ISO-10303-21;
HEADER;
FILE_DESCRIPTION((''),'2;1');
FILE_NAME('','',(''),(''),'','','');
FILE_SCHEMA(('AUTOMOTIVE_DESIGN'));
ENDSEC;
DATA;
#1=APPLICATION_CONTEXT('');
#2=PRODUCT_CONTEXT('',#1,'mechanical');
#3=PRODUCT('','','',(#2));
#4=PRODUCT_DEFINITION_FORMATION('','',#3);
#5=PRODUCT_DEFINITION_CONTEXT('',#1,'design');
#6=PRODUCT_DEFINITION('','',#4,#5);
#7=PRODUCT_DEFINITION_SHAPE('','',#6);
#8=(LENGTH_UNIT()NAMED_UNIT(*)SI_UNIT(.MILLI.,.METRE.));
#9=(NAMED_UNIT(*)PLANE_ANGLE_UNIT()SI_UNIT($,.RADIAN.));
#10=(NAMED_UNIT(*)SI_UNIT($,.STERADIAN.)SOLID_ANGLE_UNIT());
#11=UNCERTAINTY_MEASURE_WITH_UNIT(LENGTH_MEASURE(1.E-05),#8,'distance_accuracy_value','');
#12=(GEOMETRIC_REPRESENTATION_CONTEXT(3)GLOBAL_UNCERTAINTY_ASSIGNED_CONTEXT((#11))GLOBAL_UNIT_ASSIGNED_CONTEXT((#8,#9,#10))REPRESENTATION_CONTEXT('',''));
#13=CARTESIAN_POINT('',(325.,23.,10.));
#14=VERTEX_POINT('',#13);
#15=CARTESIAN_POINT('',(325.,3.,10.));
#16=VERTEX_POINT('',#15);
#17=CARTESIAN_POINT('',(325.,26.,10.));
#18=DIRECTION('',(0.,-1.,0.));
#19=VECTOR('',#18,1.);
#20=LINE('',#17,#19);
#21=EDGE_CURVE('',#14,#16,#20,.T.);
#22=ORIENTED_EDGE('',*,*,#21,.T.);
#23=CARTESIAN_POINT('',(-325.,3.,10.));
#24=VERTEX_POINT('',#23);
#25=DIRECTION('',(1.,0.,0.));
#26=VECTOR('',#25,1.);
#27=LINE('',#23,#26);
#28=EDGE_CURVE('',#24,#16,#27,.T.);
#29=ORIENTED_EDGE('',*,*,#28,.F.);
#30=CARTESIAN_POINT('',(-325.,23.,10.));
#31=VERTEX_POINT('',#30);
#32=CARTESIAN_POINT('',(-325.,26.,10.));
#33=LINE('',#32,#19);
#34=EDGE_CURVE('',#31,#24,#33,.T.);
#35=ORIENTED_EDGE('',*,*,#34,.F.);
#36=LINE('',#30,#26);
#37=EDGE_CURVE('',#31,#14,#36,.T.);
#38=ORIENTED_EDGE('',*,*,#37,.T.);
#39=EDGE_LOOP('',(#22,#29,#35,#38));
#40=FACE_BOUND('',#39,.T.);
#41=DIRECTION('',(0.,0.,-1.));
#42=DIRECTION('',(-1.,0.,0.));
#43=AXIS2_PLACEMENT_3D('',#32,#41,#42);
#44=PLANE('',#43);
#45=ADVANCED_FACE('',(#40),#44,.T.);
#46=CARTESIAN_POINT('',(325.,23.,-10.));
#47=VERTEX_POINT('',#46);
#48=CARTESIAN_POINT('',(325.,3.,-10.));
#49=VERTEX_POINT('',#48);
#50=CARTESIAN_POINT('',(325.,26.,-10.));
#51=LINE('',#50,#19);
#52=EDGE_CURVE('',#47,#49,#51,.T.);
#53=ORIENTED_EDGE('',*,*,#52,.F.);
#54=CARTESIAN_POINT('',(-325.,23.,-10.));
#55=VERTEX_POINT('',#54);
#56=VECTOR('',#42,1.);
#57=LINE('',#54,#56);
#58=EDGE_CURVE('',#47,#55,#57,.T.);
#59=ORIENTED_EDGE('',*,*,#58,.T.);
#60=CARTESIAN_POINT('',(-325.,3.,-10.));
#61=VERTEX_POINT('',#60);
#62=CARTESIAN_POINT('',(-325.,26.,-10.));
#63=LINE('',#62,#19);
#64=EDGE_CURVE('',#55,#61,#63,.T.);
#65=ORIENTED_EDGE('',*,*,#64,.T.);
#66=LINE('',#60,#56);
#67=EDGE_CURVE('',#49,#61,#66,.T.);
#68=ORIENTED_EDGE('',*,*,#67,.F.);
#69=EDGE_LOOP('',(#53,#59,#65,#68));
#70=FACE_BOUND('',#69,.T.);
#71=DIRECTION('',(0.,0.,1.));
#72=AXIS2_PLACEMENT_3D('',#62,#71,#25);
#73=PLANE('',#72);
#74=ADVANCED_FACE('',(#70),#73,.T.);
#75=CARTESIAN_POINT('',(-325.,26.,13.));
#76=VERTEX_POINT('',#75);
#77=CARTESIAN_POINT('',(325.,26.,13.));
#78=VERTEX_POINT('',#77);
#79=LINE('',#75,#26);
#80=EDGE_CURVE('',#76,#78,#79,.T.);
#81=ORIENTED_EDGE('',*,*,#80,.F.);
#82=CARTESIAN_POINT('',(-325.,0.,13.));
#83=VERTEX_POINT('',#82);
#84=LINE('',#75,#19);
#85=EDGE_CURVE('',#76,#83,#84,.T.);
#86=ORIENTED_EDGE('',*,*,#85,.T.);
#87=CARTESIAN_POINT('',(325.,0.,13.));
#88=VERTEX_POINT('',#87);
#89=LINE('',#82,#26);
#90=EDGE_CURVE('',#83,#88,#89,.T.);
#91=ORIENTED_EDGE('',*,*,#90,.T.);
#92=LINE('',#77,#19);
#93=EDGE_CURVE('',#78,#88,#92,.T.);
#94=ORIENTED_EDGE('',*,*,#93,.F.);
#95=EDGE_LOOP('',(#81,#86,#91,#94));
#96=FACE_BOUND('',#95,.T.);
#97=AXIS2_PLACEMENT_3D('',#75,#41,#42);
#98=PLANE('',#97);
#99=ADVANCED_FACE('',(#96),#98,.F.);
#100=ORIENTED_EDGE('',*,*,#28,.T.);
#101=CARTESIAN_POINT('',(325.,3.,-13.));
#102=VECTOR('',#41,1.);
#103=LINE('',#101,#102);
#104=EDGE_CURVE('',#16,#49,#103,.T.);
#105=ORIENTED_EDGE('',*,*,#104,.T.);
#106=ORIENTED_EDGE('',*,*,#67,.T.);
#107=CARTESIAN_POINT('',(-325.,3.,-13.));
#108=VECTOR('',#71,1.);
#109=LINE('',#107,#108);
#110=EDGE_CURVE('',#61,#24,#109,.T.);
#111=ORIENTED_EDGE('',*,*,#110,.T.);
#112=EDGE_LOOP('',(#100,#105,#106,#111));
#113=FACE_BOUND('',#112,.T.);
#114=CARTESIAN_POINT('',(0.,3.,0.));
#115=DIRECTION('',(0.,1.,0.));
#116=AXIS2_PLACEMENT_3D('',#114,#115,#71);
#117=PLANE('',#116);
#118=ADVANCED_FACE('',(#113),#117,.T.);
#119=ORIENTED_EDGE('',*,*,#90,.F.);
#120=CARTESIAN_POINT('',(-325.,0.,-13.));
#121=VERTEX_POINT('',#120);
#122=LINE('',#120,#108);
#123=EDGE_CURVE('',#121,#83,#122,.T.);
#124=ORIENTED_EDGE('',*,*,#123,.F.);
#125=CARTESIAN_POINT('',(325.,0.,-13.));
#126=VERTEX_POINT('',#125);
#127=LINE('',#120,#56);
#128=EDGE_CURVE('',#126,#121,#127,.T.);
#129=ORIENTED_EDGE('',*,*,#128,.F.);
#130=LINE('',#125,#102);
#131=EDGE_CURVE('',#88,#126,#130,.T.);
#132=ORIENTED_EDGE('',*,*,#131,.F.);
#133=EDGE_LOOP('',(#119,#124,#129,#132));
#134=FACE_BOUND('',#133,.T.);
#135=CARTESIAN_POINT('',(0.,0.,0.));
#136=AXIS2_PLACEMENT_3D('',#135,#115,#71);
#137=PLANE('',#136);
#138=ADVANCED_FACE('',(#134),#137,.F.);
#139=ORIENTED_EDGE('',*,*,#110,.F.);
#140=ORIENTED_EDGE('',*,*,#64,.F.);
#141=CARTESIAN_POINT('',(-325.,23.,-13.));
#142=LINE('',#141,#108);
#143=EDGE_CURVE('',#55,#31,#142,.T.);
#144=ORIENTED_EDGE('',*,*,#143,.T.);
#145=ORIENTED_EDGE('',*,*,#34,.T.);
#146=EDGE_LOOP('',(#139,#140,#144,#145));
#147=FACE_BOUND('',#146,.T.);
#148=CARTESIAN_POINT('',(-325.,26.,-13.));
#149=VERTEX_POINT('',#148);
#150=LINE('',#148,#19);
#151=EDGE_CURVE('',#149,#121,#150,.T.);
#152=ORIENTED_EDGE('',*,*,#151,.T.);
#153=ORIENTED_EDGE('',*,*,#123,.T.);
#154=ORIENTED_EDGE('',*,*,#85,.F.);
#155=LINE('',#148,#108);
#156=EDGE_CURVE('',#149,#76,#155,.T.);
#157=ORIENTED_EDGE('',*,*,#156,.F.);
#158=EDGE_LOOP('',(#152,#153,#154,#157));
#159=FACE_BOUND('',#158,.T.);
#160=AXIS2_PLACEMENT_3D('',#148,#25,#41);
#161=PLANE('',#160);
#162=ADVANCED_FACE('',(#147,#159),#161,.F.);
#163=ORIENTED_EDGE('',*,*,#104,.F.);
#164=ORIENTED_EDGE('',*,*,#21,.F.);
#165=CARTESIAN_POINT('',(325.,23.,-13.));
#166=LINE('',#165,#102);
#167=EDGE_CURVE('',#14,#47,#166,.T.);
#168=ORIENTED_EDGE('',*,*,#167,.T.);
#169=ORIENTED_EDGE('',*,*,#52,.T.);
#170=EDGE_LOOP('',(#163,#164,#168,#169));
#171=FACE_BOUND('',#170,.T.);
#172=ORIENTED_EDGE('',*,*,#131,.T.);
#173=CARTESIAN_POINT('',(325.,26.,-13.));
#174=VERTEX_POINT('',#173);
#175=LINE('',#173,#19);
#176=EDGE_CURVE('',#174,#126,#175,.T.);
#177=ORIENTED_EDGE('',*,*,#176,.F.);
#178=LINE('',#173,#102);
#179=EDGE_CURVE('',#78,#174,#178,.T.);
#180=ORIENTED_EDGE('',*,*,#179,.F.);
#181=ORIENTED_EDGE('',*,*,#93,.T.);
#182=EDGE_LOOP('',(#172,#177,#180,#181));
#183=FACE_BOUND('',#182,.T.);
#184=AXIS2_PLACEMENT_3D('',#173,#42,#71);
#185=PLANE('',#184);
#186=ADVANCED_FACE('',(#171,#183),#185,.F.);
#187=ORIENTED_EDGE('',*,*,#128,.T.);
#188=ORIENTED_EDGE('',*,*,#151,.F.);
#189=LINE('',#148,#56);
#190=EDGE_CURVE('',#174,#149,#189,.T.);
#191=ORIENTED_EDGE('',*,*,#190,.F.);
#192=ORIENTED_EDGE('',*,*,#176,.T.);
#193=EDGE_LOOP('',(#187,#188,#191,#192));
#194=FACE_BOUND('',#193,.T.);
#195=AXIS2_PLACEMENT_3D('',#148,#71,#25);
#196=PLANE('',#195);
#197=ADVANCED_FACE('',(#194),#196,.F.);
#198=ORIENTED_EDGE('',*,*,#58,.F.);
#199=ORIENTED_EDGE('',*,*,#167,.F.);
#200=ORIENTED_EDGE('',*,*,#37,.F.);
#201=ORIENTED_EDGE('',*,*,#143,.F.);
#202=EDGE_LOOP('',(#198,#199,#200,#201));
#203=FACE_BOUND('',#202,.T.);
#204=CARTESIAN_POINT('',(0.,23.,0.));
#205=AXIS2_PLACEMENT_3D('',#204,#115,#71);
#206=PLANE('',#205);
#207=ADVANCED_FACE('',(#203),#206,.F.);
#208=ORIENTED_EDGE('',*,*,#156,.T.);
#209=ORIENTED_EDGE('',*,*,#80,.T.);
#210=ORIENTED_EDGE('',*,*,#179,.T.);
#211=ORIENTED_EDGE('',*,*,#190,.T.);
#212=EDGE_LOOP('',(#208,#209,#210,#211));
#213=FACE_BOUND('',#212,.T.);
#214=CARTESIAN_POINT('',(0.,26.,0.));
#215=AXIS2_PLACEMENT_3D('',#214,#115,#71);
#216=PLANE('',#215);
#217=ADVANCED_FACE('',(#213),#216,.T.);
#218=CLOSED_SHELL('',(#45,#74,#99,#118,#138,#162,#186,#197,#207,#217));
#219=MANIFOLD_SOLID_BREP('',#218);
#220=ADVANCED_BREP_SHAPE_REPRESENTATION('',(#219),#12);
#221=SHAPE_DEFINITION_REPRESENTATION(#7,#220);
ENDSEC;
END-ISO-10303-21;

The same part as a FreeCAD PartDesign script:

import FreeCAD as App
import Part
import Sketcher

V = App.Vector
Q = App.Units.Quantity


def faces_at(feature, points):
    """Names of the faces that lie closest to the given points."""
    faces = feature.Shape.Faces
    near = lambda p: min(range(len(faces)), key=lambda i: faces[i].distToShape(Part.Vertex(*p))[0])
    return sorted({f"Face{near(p) + 1}" for p in points})


def add_polygon(sketch, points):
    """Adds a closed chain of lines whose ends are joined by coincident constraints."""
    first, n = sketch.GeometryCount, len(points)
    for a, b in zip(points, points[1:] + points[:1]):
        sketch.addGeometry(Part.LineSegment(App.Vector(*a, 0), App.Vector(*b, 0)), False)
    for i in range(n):
        sketch.addConstraint(Sketcher.Constraint("Coincident", first + i, 2, first + (i + 1) % n, 1))

doc = App.newDocument("Part")
body = doc.addObject("PartDesign::Body", "Body")

sketch1 = doc.addObject("Sketcher::SketchObject", "Sketch")
body.addObject(sketch1)
sketch1.AttachmentSupport = (doc.XZ_Plane, [""])
sketch1.MapMode = "FlatFace"
add_polygon(sketch1, [(-325, -13), (-325, 13), (325, 13), (325, -13)])
sketch1.addConstraint([
    Sketcher.Constraint("Vertical", 0),
    Sketcher.Constraint("Horizontal", 1),
    Sketcher.Constraint("Vertical", 2),
    Sketcher.Constraint("Horizontal", 3),
    Sketcher.Constraint("Symmetric", 0, 2, 2, 2, -1, 1),
    Sketcher.Constraint("DistanceX", 1, 1, 1, 2, Q("650 mm")),
    Sketcher.Constraint("DistanceY", 0, 1, 0, 2, Q("26 mm")),
])
pad1 = doc.addObject("PartDesign::Pad", "Pad")
body.addObject(pad1)
pad1.Profile = sketch1
pad1.Length = 26
pad1.Reversed = True
doc.recompute()

thickness = doc.addObject("PartDesign::Thickness", "Thickness")
body.addObject(thickness)
thickness.Base = (pad1, faces_at(pad1, [(-325, 13, 0), (325, 13, 0)]))
thickness.Value = 3
thickness.Reversed = True
thickness.Join = "Intersection"

doc.recompute()
